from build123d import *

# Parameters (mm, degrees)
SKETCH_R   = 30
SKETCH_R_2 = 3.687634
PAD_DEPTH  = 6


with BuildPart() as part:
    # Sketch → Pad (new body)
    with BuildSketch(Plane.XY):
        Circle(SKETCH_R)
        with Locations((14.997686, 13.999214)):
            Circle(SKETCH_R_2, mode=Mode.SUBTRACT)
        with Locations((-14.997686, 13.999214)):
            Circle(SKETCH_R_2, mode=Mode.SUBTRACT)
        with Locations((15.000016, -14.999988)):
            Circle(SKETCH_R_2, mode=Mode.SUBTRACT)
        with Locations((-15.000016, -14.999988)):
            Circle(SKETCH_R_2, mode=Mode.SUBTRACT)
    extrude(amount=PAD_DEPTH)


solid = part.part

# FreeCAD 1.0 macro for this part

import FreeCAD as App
import Part
import Sketcher

V = App.Vector

doc = App.newDocument("Part")
params = doc.addObject("Spreadsheet::Sheet", "Params")
for row, (alias, value) in enumerate([
    ("sketch1_diameter", "60 mm"),
    ("pad1_length", "6 mm"),
], start=1):
    params.set(f"A{row}", alias)
    params.set(f"B{row}", "=" + value)
    params.setAlias(f"B{row}", alias)

body = doc.addObject("PartDesign::Body", "Body")

sketch1 = doc.addObject("Sketcher::SketchObject", "Sketch")
body.addObject(sketch1)
sketch1.AttachmentSupport = (doc.XY_Plane, [""])
sketch1.MapMode = "FlatFace"
sketch1.addGeometry([
    Part.Circle(V(0, 0, 0), V(0, 0, 1), 30),
    Part.Circle(V(-15.000016, -14.999988, 0), V(0, 0, 1), 3.687634),
    Part.Circle(V(15.000016, -14.999988, 0), V(0, 0, 1), 3.687634),
    Part.Circle(V(-14.997686, 13.999214, 0), V(0, 0, 1), 3.687634),
    Part.Circle(V(14.997686, 13.999214, 0), V(0, 0, 1), 3.687634),
], False)
sketch1.addConstraint([
    Sketcher.Constraint("Coincident", 0, 3, -1, 1),
    Sketcher.Constraint("Equal", 1, 2),
    Sketcher.Constraint("Equal", 2, 3),
    Sketcher.Constraint("Equal", 3, 4),
    Sketcher.Constraint("Symmetric", 1, 3, 2, 3, -2),
    Sketcher.Constraint("Symmetric", 3, 3, 4, 3, -2),
    Sketcher.Constraint("Diameter", 0, 60.0),
    Sketcher.Constraint("Diameter", 1, 7.375268),
    Sketcher.Constraint("DistanceX", 1, 3, 3, 3, 0.00233),
    Sketcher.Constraint("DistanceX", 3, 3, 4, 3, 29.995372),
    Sketcher.Constraint("DistanceY", 1, 3, -1, 1, 14.999988),
    Sketcher.Constraint("DistanceY", -1, 1, 3, 3, 13.999214),
])
sketch1.setExpression("Constraints[6]", "Params.sketch1_diameter")
pad1 = doc.addObject("PartDesign::Pad", "Pad")
body.addObject(pad1)
pad1.Profile = sketch1
pad1.setExpression("Length", "Params.pad1_length")

doc.recompute()
